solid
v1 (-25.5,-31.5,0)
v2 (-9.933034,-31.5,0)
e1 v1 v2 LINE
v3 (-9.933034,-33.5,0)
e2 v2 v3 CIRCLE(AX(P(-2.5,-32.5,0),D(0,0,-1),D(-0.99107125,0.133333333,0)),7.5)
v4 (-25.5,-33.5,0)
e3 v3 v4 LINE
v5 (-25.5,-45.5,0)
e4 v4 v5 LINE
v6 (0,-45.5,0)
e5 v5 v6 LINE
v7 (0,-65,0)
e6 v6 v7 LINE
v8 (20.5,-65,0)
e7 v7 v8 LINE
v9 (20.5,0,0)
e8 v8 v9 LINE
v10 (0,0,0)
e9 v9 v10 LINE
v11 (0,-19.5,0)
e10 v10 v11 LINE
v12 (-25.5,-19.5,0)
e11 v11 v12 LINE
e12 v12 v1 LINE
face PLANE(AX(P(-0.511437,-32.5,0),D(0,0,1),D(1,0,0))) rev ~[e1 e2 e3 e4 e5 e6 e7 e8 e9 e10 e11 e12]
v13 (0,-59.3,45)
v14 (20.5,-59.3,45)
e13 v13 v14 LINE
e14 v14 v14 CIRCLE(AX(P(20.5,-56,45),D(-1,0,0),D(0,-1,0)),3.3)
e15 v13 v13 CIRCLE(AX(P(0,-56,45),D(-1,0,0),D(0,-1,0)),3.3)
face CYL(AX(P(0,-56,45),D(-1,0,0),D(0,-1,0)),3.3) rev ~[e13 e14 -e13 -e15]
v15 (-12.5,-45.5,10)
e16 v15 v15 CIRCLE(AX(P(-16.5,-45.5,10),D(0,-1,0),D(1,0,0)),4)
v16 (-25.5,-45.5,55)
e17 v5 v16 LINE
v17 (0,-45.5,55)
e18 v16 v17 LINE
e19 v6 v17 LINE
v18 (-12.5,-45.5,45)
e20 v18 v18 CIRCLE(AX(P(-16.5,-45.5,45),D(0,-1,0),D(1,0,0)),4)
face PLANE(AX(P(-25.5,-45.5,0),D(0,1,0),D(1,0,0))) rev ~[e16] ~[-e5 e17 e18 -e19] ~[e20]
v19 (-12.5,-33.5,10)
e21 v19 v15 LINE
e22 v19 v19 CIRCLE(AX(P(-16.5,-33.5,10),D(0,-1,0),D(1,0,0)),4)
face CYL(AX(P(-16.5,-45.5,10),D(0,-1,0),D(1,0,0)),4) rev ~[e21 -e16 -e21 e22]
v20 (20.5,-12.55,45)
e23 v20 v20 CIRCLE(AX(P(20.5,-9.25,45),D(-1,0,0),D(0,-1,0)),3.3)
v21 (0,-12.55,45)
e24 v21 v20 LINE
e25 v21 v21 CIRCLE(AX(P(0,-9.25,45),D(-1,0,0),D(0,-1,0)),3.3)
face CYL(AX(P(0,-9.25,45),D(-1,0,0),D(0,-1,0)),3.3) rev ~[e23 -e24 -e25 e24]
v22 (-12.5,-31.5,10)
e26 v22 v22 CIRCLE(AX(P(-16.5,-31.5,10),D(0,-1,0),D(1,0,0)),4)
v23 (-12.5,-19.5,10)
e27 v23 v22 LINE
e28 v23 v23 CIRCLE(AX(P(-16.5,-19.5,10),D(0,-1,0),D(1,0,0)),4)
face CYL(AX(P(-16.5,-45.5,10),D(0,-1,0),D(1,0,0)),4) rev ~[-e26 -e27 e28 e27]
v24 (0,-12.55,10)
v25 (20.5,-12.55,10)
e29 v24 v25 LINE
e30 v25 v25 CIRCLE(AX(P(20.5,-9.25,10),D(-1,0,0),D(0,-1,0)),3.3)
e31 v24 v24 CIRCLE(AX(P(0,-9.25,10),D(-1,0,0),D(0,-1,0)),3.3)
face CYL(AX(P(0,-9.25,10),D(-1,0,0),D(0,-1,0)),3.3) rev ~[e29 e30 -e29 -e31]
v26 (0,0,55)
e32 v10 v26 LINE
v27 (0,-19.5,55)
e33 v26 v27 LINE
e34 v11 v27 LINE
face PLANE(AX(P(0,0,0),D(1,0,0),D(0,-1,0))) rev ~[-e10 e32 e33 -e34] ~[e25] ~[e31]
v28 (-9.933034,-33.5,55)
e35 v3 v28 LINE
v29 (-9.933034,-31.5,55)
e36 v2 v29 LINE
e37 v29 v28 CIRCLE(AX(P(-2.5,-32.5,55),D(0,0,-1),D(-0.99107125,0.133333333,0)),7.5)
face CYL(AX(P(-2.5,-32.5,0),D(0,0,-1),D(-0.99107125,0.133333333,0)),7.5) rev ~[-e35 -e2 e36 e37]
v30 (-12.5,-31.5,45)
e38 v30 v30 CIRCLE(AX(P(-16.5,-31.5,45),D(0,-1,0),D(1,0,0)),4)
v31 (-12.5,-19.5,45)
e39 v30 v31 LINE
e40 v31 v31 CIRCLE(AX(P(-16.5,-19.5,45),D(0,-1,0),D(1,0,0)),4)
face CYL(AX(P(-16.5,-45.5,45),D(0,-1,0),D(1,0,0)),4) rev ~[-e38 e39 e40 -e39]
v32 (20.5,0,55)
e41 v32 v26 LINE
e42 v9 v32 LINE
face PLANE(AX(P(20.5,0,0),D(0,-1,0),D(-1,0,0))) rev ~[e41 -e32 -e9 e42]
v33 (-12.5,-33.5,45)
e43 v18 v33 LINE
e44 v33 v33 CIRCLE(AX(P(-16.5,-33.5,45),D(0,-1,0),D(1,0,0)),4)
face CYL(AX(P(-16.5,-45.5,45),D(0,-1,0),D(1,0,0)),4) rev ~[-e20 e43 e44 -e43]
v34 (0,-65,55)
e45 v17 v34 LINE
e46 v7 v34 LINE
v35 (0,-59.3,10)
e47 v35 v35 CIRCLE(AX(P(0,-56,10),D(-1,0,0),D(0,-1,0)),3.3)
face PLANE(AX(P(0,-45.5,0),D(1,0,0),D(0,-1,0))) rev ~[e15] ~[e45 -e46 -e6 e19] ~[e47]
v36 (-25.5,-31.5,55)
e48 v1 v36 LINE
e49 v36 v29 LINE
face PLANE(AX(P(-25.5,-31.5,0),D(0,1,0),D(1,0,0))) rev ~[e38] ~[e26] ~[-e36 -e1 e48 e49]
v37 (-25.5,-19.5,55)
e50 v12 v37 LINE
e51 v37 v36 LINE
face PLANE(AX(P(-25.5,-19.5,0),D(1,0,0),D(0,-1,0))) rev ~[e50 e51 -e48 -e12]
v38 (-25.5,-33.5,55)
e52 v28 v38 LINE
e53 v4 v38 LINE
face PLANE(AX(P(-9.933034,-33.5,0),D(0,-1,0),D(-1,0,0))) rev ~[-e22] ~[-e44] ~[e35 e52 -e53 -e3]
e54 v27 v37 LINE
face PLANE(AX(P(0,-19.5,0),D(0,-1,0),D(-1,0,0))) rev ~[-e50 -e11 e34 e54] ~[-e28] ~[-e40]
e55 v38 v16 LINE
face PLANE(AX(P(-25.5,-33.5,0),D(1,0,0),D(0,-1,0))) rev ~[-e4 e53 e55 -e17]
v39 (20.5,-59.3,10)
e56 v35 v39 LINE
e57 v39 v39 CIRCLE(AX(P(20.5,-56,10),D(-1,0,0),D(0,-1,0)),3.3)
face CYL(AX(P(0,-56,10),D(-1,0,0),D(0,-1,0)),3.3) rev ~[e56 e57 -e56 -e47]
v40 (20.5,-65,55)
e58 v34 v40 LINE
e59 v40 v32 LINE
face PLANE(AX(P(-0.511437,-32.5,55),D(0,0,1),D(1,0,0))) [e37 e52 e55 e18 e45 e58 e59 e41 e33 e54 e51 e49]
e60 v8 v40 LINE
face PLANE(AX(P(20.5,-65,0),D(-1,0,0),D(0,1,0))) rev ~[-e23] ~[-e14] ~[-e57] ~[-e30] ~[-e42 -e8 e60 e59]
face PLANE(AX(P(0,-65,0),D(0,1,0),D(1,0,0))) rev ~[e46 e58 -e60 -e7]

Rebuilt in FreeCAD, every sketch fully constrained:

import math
import FreeCAD as App
import Part
import Sketcher

V = App.Vector

doc = App.newDocument("Part")
body = doc.addObject("PartDesign::Body", "Body")

# Sketch on XY plane
sketch1 = body.newObject("Sketcher::SketchObject", "Sketch")
sketch1.AttachmentSupport = (doc.getObject("XY_Plane"), [""])
sketch1.MapMode = "FlatFace"
sketch1.addGeometry(Part.LineSegment(V(20.5, 0, 0), V(0, 0, 0)), False)
sketch1.addGeometry(Part.LineSegment(V(0, 0, 0), V(0, -19.5, 0)), False)
sketch1.addGeometry(Part.LineSegment(V(0, -19.5, 0), V(-25.5, -19.5, 0)), False)
sketch1.addGeometry(Part.LineSegment(V(-25.5, -19.5, 0), V(-25.5, -31.5, 0)), False)
sketch1.addGeometry(Part.LineSegment(V(-25.5, -31.5, 0), V(-9.9, -31.5, 0)), False)
sketch1.addGeometry(Part.ArcOfCircle(Part.Circle(V(-2.5, -32.5, 0), V(0, 0, 1), 7.5), math.radians(-172), math.radians(172)), False)
sketch1.addGeometry(Part.LineSegment(V(-9.9, -33.5, 0), V(-25.5, -33.5, 0)), False)
sketch1.addGeometry(Part.LineSegment(V(-25.5, -33.5, 0), V(-25.5, -45.5, 0)), False)
sketch1.addGeometry(Part.LineSegment(V(-25.5, -45.5, 0), V(0, -45.5, 0)), False)
sketch1.addGeometry(Part.LineSegment(V(0, -45.5, 0), V(0, -65, 0)), False)
sketch1.addGeometry(Part.LineSegment(V(0, -65, 0), V(20.5, -65, 0)), False)
sketch1.addGeometry(Part.LineSegment(V(20.5, -65, 0), V(20.5, 0, 0)), False)
sketch1.addConstraint(Sketcher.Constraint("Coincident", 0, 2, 1, 1))
sketch1.addConstraint(Sketcher.Constraint("Coincident", 1, 2, 2, 1))
sketch1.addConstraint(Sketcher.Constraint("Coincident", 2, 2, 3, 1))
sketch1.addConstraint(Sketcher.Constraint("Coincident", 3, 2, 4, 1))
sketch1.addConstraint(Sketcher.Constraint("Coincident", 4, 2, 5, 2))
sketch1.addConstraint(Sketcher.Constraint("Coincident", 5, 1, 6, 1))
sketch1.addConstraint(Sketcher.Constraint("Coincident", 6, 2, 7, 1))
sketch1.addConstraint(Sketcher.Constraint("Coincident", 7, 2, 8, 1))
sketch1.addConstraint(Sketcher.Constraint("Coincident", 8, 2, 9, 1))
sketch1.addConstraint(Sketcher.Constraint("Coincident", 9, 2, 10, 1))
sketch1.addConstraint(Sketcher.Constraint("Coincident", 10, 2, 11, 1))
sketch1.addConstraint(Sketcher.Constraint("Coincident", 11, 2, 0, 1))
sketch1.addConstraint(Sketcher.Constraint("Horizontal", 0))
sketch1.addConstraint(Sketcher.Constraint("Vertical", 1))
sketch1.addConstraint(Sketcher.Constraint("Horizontal", 2))
sketch1.addConstraint(Sketcher.Constraint("Vertical", 3))
sketch1.addConstraint(Sketcher.Constraint("Horizontal", 4))
sketch1.addConstraint(Sketcher.Constraint("Horizontal", 6))
sketch1.addConstraint(Sketcher.Constraint("Vertical", 7))
sketch1.addConstraint(Sketcher.Constraint("Horizontal", 8))
sketch1.addConstraint(Sketcher.Constraint("Vertical", 9))
sketch1.addConstraint(Sketcher.Constraint("Horizontal", 10))
sketch1.addConstraint(Sketcher.Constraint("Vertical", 11))
sketch1.addConstraint(Sketcher.Constraint("Coincident", 0, 2, -1, 1))
sketch1.addConstraint(Sketcher.Constraint("PointOnObject", 8, 2, -2))
sketch1.addConstraint(Sketcher.Constraint("Vertical", 4, 2, 5, 1))
sketch1.addConstraint(Sketcher.Constraint("Vertical", 3, 2, 6, 2))
sketch1.addConstraint(Sketcher.Constraint("Equal", 3, 7))
sketch1.addConstraint(Sketcher.Constraint("Equal", 1, 9))
sketch1.addConstraint(Sketcher.Constraint("Radius", 5, 7.5))
sketch1.addConstraint(Sketcher.Constraint("DistanceY", 3, 2, 3, 1, 12.0))
sketch1.addConstraint(Sketcher.Constraint("DistanceY", 11, 1, 11, 2, 65.0))
sketch1.addConstraint(Sketcher.Constraint("DistanceX", 0, 2, 0, 1, 20.5))
sketch1.addConstraint(Sketcher.Constraint("DistanceX", 2, 2, 2, 1, 25.5))
sketch1.addConstraint(Sketcher.Constraint("DistanceY", 1, 2, 1, 1, 19.5))
sketch1.addConstraint(Sketcher.Constraint("DistanceX", 2, 2, 5, 3, 23.0))
pad1 = body.newObject("PartDesign::Pad", "Pad")
pad1.Profile = sketch1
pad1.Length = 55

# Sketch on XZ plane
sketch2 = body.newObject("Sketcher::SketchObject", "Sketch001")
sketch2.AttachmentSupport = (doc.getObject("XZ_Plane"), [""])
sketch2.MapMode = "FlatFace"
sketch2.AttachmentOffset = App.Placement(V(0, 0, 45.5), App.Rotation())
sketch2.addGeometry(Part.Circle(V(-16.5, 10, 0), V(0, 0, 1), 4), False)
sketch2.addConstraint(Sketcher.Constraint("Diameter", 0, 8.0))
sketch2.addConstraint(Sketcher.Constraint("DistanceY", -1, 1, 0, 3, 10.0))
sketch2.addConstraint(Sketcher.Constraint("DistanceX", 0, 3, -1, 1, 16.5))
pocket1 = body.newObject("PartDesign::Pocket", "Pocket")
pocket1.Profile = sketch2
pocket1.Length = 100
pocket1.Midplane = True

# Sketch on XZ plane
sketch3 = body.newObject("Sketcher::SketchObject", "Sketch002")
sketch3.AttachmentSupport = (doc.getObject("XZ_Plane"), [""])
sketch3.MapMode = "FlatFace"
sketch3.AttachmentOffset = App.Placement(V(0, 0, 45.5), App.Rotation())
sketch3.addGeometry(Part.Circle(V(-16.5, 45, 0), V(0, 0, 1), 4), False)
sketch3.addConstraint(Sketcher.Constraint("Diameter", 0, 8.0))
sketch3.addConstraint(Sketcher.Constraint("DistanceY", -1, 1, 0, 3, 45.0))
sketch3.addConstraint(Sketcher.Constraint("DistanceX", 0, 3, -1, 1, 16.5))
pocket2 = body.newObject("PartDesign::Pocket", "Pocket001")
pocket2.Profile = sketch3
pocket2.Length = 100

# Sketch on YZ plane
sketch4 = body.newObject("Sketcher::SketchObject", "Sketch003")
sketch4.AttachmentSupport = (doc.getObject("YZ_Plane"), [""])
sketch4.MapMode = "FlatFace"
sketch4.addGeometry(Part.Circle(V(-9.2, 45, 0), V(0, 0, 1), 3.3), False)
sketch4.addGeometry(Part.Circle(V(-9.2, 10, 0), V(0, 0, 1), 3.3), False)
sketch4.addConstraint(Sketcher.Constraint("Equal", 0, 1))
sketch4.addConstraint(Sketcher.Constraint("Vertical", 0, 3, 1, 3))
sketch4.addConstraint(Sketcher.Constraint("Diameter", 0, 6.6))
sketch4.addConstraint(Sketcher.Constraint("DistanceY", -1, 1, 0, 3, 45.0))
sketch4.addConstraint(Sketcher.Constraint("DistanceY", -1, 1, 1, 3, 10.0))
sketch4.addConstraint(Sketcher.Constraint("DistanceX", 0, 3, -1, 1, 9.25))
pocket3 = body.newObject("PartDesign::Pocket", "Pocket002")
pocket3.Profile = sketch4
pocket3.Length = 25
pocket3.Reversed = True

# Sketch on YZ plane
sketch5 = body.newObject("Sketcher::SketchObject", "Sketch004")
sketch5.AttachmentSupport = (doc.getObject("YZ_Plane"), [""])
sketch5.MapMode = "FlatFace"
sketch5.addGeometry(Part.Circle(V(-56, 10, 0), V(0, 0, 1), 3.3), False)
sketch5.addGeometry(Part.Circle(V(-56, 45, 0), V(0, 0, 1), 3.3), False)
sketch5.addConstraint(Sketcher.Constraint("Equal", 0, 1))
sketch5.addConstraint(Sketcher.Constraint("Vertical", 0, 3, 1, 3))
sketch5.addConstraint(Sketcher.Constraint("Diameter", 0, 6.6))
sketch5.addConstraint(Sketcher.Constraint("DistanceX", 0, 3, -1, 1, 56.0))
sketch5.addConstraint(Sketcher.Constraint("DistanceY", -1, 1, 0, 3, 10.0))
sketch5.addConstraint(Sketcher.Constraint("DistanceY", -1, 1, 1, 3, 45.0))
pocket4 = body.newObject("PartDesign::Pocket", "Pocket003")
pocket4.Profile = sketch5
pocket4.Length = 25
pocket4.Reversed = True

doc.recompute()
